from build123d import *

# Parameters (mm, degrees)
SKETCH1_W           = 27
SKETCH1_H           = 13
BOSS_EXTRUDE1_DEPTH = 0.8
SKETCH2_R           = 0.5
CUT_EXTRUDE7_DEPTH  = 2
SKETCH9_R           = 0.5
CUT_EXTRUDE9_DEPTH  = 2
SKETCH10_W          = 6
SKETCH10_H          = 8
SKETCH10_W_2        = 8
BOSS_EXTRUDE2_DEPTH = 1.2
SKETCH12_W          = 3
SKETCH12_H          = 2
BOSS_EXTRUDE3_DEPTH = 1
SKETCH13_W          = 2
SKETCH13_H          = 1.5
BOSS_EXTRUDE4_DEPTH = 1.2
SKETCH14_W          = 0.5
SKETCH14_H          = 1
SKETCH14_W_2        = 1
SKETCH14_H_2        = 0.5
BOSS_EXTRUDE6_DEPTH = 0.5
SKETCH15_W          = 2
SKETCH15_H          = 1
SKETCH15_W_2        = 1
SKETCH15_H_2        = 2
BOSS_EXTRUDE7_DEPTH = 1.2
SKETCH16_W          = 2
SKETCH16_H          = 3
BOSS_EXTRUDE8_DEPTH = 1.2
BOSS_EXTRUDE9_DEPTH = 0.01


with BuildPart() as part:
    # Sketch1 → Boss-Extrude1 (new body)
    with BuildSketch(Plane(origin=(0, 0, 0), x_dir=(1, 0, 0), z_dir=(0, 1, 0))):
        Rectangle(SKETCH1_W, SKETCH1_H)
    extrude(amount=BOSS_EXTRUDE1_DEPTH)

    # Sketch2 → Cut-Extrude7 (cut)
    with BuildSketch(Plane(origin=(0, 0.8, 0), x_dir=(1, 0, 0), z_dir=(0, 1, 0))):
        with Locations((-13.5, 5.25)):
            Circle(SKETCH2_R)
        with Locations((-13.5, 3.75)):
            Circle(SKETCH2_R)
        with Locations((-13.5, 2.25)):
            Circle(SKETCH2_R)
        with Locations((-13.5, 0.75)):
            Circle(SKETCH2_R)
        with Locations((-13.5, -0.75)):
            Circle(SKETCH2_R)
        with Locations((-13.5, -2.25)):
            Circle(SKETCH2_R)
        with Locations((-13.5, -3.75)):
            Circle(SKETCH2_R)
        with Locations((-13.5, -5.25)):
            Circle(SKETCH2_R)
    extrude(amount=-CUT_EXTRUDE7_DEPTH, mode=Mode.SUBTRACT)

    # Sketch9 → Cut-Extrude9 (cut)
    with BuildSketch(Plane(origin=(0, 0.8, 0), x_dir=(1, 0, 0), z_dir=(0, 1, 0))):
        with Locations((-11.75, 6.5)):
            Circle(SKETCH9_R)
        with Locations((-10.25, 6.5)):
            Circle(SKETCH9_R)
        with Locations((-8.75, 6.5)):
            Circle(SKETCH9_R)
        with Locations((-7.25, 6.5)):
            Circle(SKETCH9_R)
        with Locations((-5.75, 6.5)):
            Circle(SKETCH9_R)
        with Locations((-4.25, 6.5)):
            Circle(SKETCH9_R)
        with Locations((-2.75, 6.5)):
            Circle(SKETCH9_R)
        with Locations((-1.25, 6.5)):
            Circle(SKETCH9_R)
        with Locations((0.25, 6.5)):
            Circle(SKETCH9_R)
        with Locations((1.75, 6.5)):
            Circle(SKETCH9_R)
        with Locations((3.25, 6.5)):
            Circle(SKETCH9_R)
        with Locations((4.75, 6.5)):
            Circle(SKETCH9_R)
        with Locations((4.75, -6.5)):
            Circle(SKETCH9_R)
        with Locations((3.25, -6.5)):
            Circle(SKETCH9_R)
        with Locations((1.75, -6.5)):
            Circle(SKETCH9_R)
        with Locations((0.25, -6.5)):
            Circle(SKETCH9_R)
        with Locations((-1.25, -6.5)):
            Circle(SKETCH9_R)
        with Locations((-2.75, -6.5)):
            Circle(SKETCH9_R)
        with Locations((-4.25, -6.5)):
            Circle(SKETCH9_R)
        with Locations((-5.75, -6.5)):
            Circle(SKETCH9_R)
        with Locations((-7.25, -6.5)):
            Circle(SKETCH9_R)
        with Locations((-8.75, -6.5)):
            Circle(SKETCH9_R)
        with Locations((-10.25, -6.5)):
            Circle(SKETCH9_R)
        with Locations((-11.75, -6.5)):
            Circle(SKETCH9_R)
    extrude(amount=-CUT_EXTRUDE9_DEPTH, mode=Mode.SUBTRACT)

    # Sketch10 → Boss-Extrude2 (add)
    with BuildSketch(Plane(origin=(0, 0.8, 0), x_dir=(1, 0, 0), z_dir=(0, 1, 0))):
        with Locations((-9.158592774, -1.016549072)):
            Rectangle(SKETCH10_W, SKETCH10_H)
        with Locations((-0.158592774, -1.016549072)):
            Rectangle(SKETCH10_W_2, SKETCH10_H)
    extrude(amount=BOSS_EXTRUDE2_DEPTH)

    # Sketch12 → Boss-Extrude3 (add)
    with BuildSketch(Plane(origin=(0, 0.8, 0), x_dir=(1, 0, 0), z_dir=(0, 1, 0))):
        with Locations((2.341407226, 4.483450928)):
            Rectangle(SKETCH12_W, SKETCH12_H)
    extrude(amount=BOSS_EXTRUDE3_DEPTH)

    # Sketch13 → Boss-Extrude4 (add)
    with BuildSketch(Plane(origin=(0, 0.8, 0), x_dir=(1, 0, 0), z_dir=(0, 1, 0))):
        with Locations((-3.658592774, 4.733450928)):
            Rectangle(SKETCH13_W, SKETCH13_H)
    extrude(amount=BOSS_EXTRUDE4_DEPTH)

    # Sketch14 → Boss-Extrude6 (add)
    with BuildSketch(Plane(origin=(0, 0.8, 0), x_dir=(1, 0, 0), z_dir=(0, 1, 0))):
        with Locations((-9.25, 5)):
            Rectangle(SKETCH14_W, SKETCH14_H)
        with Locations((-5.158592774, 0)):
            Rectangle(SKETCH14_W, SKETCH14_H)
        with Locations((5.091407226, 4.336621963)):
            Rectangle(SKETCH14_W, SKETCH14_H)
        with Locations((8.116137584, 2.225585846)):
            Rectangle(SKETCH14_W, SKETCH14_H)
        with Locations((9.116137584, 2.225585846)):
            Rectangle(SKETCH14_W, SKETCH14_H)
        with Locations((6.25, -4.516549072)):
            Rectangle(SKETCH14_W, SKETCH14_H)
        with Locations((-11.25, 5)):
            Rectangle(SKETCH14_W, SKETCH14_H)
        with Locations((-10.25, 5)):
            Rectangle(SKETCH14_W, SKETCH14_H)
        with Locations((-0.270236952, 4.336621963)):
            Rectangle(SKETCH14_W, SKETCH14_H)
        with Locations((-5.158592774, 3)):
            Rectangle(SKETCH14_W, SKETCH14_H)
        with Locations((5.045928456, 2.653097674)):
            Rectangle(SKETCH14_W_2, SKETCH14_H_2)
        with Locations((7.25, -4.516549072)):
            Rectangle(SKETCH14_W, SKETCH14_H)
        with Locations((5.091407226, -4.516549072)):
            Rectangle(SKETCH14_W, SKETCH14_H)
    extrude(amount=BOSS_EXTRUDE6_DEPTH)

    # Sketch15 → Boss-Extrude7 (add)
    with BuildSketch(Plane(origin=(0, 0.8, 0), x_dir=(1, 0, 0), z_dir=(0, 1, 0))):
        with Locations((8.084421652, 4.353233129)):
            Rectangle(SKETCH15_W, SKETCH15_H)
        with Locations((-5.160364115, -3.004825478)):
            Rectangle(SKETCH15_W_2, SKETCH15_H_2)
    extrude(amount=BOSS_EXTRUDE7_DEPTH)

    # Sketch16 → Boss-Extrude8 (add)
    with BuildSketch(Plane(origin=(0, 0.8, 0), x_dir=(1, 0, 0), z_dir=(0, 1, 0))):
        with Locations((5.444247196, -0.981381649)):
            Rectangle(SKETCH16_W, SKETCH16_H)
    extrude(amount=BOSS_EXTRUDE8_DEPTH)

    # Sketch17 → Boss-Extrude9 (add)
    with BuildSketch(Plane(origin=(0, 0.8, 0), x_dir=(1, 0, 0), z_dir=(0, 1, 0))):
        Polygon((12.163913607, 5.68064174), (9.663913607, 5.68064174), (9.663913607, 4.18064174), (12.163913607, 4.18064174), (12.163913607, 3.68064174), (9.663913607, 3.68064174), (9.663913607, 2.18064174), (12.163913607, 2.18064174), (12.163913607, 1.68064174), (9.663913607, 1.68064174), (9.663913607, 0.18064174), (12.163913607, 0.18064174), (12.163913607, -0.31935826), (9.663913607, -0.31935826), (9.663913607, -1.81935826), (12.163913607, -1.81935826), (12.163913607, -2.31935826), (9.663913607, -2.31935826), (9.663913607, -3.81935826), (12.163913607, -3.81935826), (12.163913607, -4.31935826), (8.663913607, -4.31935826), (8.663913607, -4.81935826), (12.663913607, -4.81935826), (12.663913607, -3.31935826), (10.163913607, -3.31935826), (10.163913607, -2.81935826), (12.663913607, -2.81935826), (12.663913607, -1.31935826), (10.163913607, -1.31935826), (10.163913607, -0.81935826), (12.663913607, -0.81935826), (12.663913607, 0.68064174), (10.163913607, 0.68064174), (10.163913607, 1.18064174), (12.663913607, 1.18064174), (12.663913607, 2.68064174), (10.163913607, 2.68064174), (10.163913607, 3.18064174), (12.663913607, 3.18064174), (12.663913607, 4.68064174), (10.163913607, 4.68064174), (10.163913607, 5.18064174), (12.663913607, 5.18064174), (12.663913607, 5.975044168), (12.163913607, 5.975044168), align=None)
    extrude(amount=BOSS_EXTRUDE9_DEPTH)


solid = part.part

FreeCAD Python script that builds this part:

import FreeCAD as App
import Part
import Sketcher
Q = App.Units.Quantity


def add_polygon(sketch, points):
    """Adds a closed chain of lines whose ends are joined by coincident constraints."""
    first, n = sketch.GeometryCount, len(points)
    for a, b in zip(points, points[1:] + points[:1]):
        sketch.addGeometry(Part.LineSegment(App.Vector(*a, 0), App.Vector(*b, 0)), False)
    for i in range(n):
        sketch.addConstraint(Sketcher.Constraint("Coincident", first + i, 2, first + (i + 1) % n, 1))

doc = App.newDocument("Part")
body = doc.addObject("PartDesign::Body", "Body")

# Sketch on XZ plane
sketch1 = body.newObject("Sketcher::SketchObject", "Sketch")
sketch1.AttachmentSupport = (doc.getObject("XZ_Plane"), [""])
sketch1.MapMode = "FlatFace"
add_polygon(sketch1, [(-14, -6), (-14, 6), (14, 6), (14, -6)])  # lines 0-3
sketch1.addConstraint([
    Sketcher.Constraint("Vertical", 0),
    Sketcher.Constraint("Horizontal", 1),
    Sketcher.Constraint("Vertical", 2),
    Sketcher.Constraint("Horizontal", 3),
    Sketcher.Constraint("Symmetric", 0, 2, 2, 2, -1, 1),
    Sketcher.Constraint("DistanceX", 1, 1, 1, 2, Q("27 mm")),
    Sketcher.Constraint("DistanceY", 0, 1, 0, 2, Q("13 mm")),
])
pad1 = body.newObject("PartDesign::Pad", "Pad")
pad1.Profile = sketch1
pad1.Length = 0.8
pad1.Reversed = True

# Sketch on XZ plane
sketch2 = body.newObject("Sketcher::SketchObject", "Sketch001")
sketch2.AttachmentSupport = (doc.getObject("XZ_Plane"), [""])
sketch2.MapMode = "FlatFace"
sketch2.AttachmentOffset = App.Placement(App.Vector(0, 0, -0.8), App.Rotation())
sketch2.addGeometry([
    Part.Circle(App.Vector(-13.5, -5.2, 0), App.Vector(0, 0, 1), 0.5),  # 0
    Part.Circle(App.Vector(-13.5, -3.8, 0), App.Vector(0, 0, 1), 0.5),  # 1
    Part.Circle(App.Vector(-13.5, -2.2, 0), App.Vector(0, 0, 1), 0.5),  # 2
    Part.Circle(App.Vector(-13.5, -0.8, 0), App.Vector(0, 0, 1), 0.5),  # 3
    Part.Circle(App.Vector(-13.5, 0.8, 0), App.Vector(0, 0, 1), 0.5),  # 4
    Part.Circle(App.Vector(-13.5, 2.2, 0), App.Vector(0, 0, 1), 0.5),  # 5
    Part.Circle(App.Vector(-13.5, 3.8, 0), App.Vector(0, 0, 1), 0.5),  # 6
    Part.Circle(App.Vector(-13.5, 5.2, 0), App.Vector(0, 0, 1), 0.5),  # 7
], False)
sketch2.addConstraint([
    Sketcher.Constraint("Equal", 0, 1),
    Sketcher.Constraint("Equal", 1, 2),
    Sketcher.Constraint("Equal", 2, 3),
    Sketcher.Constraint("Equal", 3, 4),
    Sketcher.Constraint("Equal", 4, 5),
    Sketcher.Constraint("Equal", 5, 6),
    Sketcher.Constraint("Equal", 6, 7),
    Sketcher.Constraint("Symmetric", 3, 3, 4, 3, -1),
    Sketcher.Constraint("Symmetric", 2, 3, 5, 3, -1),
    Sketcher.Constraint("Symmetric", 1, 3, 6, 3, -1),
    Sketcher.Constraint("Symmetric", 0, 3, 7, 3, -1),
    Sketcher.Constraint("Vertical", 0, 3, 1, 3),
    Sketcher.Constraint("Vertical", 1, 3, 2, 3),
    Sketcher.Constraint("Vertical", 2, 3, 3, 3),
    Sketcher.Constraint("Diameter", 0, Q("1 mm")),
    Sketcher.Constraint("DistanceY", 0, 3, 2, 3, Q("3 mm")),
    Sketcher.Constraint("DistanceY", 1, 3, 3, 3, Q("3 mm")),
    Sketcher.Constraint("DistanceY", 2, 3, 4, 3, Q("3 mm")),
    Sketcher.Constraint("DistanceX", 0, 3, -1, 1, Q("13.5 mm")),
    Sketcher.Constraint("DistanceY", 0, 3, 1, 3, Q("1.5 mm")),
])
pocket1 = body.newObject("PartDesign::Pocket", "Pocket")
pocket1.Profile = sketch2
pocket1.Length = 2
pocket1.Reversed = True

# Sketch on XZ plane
sketch3 = body.newObject("Sketcher::SketchObject", "Sketch002")
sketch3.AttachmentSupport = (doc.getObject("XZ_Plane"), [""])
sketch3.MapMode = "FlatFace"
sketch3.AttachmentOffset = App.Placement(App.Vector(0, 0, -0.8), App.Rotation())
sketch3.addGeometry([
    Part.Circle(App.Vector(-11.8, -6.5, 0), App.Vector(0, 0, 1), 0.5),  # 0
    Part.Circle(App.Vector(-10.2, -6.5, 0), App.Vector(0, 0, 1), 0.5),  # 1
    Part.Circle(App.Vector(-8.8, -6.5, 0), App.Vector(0, 0, 1), 0.5),  # 2
    Part.Circle(App.Vector(-7.2, -6.5, 0), App.Vector(0, 0, 1), 0.5),  # 3
    Part.Circle(App.Vector(-5.8, -6.5, 0), App.Vector(0, 0, 1), 0.5),  # 4
    Part.Circle(App.Vector(-4.2, -6.5, 0), App.Vector(0, 0, 1), 0.5),  # 5
    Part.Circle(App.Vector(-2.8, -6.5, 0), App.Vector(0, 0, 1), 0.5),  # 6
    Part.Circle(App.Vector(-1.2, -6.5, 0), App.Vector(0, 0, 1), 0.5),  # 7
    Part.Circle(App.Vector(0.2, -6.5, 0), App.Vector(0, 0, 1), 0.5),  # 8
    Part.Circle(App.Vector(1.8, -6.5, 0), App.Vector(0, 0, 1), 0.5),  # 9
    Part.Circle(App.Vector(3.2, -6.5, 0), App.Vector(0, 0, 1), 0.5),  # 10
    Part.Circle(App.Vector(4.8, -6.5, 0), App.Vector(0, 0, 1), 0.5),  # 11
    Part.Circle(App.Vector(4.8, 6.5, 0), App.Vector(0, 0, 1), 0.5),  # 12
    Part.Circle(App.Vector(3.2, 6.5, 0), App.Vector(0, 0, 1), 0.5),  # 13
    Part.Circle(App.Vector(1.8, 6.5, 0), App.Vector(0, 0, 1), 0.5),  # 14
    Part.Circle(App.Vector(0.2, 6.5, 0), App.Vector(0, 0, 1), 0.5),  # 15
    Part.Circle(App.Vector(-1.2, 6.5, 0), App.Vector(0, 0, 1), 0.5),  # 16
    Part.Circle(App.Vector(-2.8, 6.5, 0), App.Vector(0, 0, 1), 0.5),  # 17
    Part.Circle(App.Vector(-4.2, 6.5, 0), App.Vector(0, 0, 1), 0.5),  # 18
    Part.Circle(App.Vector(-5.8, 6.5, 0), App.Vector(0, 0, 1), 0.5),  # 19
    Part.Circle(App.Vector(-7.2, 6.5, 0), App.Vector(0, 0, 1), 0.5),  # 20
    Part.Circle(App.Vector(-8.8, 6.5, 0), App.Vector(0, 0, 1), 0.5),  # 21
    Part.Circle(App.Vector(-10.2, 6.5, 0), App.Vector(0, 0, 1), 0.5),  # 22
    Part.Circle(App.Vector(-11.8, 6.5, 0), App.Vector(0, 0, 1), 0.5),  # 23
], False)
sketch3.addConstraint([
    Sketcher.Constraint("Equal", 0, 1),
    Sketcher.Constraint("Equal", 1, 2),
    Sketcher.Constraint("Equal", 2, 3),
    Sketcher.Constraint("Equal", 3, 4),
    Sketcher.Constraint("Equal", 4, 5),
    Sketcher.Constraint("Equal", 5, 6),
    Sketcher.Constraint("Equal", 6, 7),
    Sketcher.Constraint("Equal", 7, 8),
    Sketcher.Constraint("Equal", 8, 9),
    Sketcher.Constraint("Equal", 9, 10),
    Sketcher.Constraint("Equal", 10, 11),
    Sketcher.Constraint("Equal", 11, 12),
    Sketcher.Constraint("Equal", 12, 13),
    Sketcher.Constraint("Equal", 13, 14),
    Sketcher.Constraint("Equal", 14, 15),
    Sketcher.Constraint("Equal", 15, 16),
    Sketcher.Constraint("Equal", 16, 17),
    Sketcher.Constraint("Equal", 17, 18),
    Sketcher.Constraint("Equal", 18, 19),
    Sketcher.Constraint("Equal", 19, 20),
    Sketcher.Constraint("Equal", 20, 21),
    Sketcher.Constraint("Equal", 21, 22),
    Sketcher.Constraint("Equal", 22, 23),
    Sketcher.Constraint("Symmetric", 11, 3, 12, 3, -1),
    Sketcher.Constraint("Symmetric", 10, 3, 13, 3, -1),
    Sketcher.Constraint("Symmetric", 9, 3, 14, 3, -1),
    Sketcher.Constraint("Symmetric", 8, 3, 15, 3, -1),
    Sketcher.Constraint("Symmetric", 7, 3, 16, 3, -1),
    Sketcher.Constraint("Symmetric", 6, 3, 17, 3, -1),
    Sketcher.Constraint("Symmetric", 5, 3, 18, 3, -1),
    Sketcher.Constraint("Symmetric", 4, 3, 19, 3, -1),
    Sketcher.Constraint("Symmetric", 3, 3, 20, 3, -1),
    Sketcher.Constraint("Symmetric", 2, 3, 21, 3, -1),
    Sketcher.Constraint("Symmetric", 1, 3, 22, 3, -1),
    Sketcher.Constraint("Symmetric", 0, 3, 23, 3, -1),
    Sketcher.Constraint("Horizontal", 0, 3, 1, 3),
    Sketcher.Constraint("Horizontal", 1, 3, 2, 3),
    Sketcher.Constraint("Horizontal", 2, 3, 3, 3),
    Sketcher.Constraint("Horizontal", 3, 3, 4, 3),
    Sketcher.Constraint("Horizontal", 4, 3, 5, 3),
    Sketcher.Constraint("Horizontal", 5, 3, 6, 3),
    Sketcher.Constraint("Horizontal", 6, 3, 7, 3),
    Sketcher.Constraint("Horizontal", 7, 3, 8, 3),
    Sketcher.Constraint("Horizontal", 8, 3, 9, 3),
    Sketcher.Constraint("Horizontal", 9, 3, 10, 3),
    Sketcher.Constraint("Horizontal", 10, 3, 11, 3),
    Sketcher.Constraint("Diameter", 0, Q("1 mm")),
    Sketcher.Constraint("DistanceX", 0, 3, 2, 3, Q("3 mm")),
    Sketcher.Constraint("DistanceX", 1, 3, 3, 3, Q("3 mm")),
    Sketcher.Constraint("DistanceX", 2, 3, 4, 3, Q("3 mm")),
    Sketcher.Constraint("DistanceX", 3, 3, 5, 3, Q("3 mm")),
    Sketcher.Constraint("DistanceX", 4, 3, 6, 3, Q("3 mm")),
    Sketcher.Constraint("DistanceX", 5, 3, 7, 3, Q("3 mm")),
    Sketcher.Constraint("DistanceX", 6, 3, 8, 3, Q("3 mm")),
    Sketcher.Constraint("DistanceX", 7, 3, 9, 3, Q("3 mm")),
    Sketcher.Constraint("DistanceX", 8, 3, 10, 3, Q("3 mm")),
    Sketcher.Constraint("DistanceX", 9, 3, 11, 3, Q("3 mm")),
    Sketcher.Constraint("DistanceY", 11, 3, 12, 3, Q("13 mm")),
    Sketcher.Constraint("DistanceX", 0, 3, 1, 3, Q("1.5 mm")),
    Sketcher.Constraint("DistanceX", 0, 3, -1, 1, Q("11.75 mm")),
])
pocket2 = body.newObject("PartDesign::Pocket", "Pocket001")
pocket2.Profile = sketch3
pocket2.Length = 2
pocket2.Reversed = True

# Sketch on XZ plane
sketch4 = body.newObject("Sketcher::SketchObject", "Sketch003")
sketch4.AttachmentSupport = (doc.getObject("XZ_Plane"), [""])
sketch4.MapMode = "FlatFace"
sketch4.AttachmentOffset = App.Placement(App.Vector(0, 0, -0.8), App.Rotation())
add_polygon(sketch4, [(-12, -3), (-12, 5), (-6, 5), (-6, -3)])  # lines 0-3
add_polygon(sketch4, [(-4, -3), (-4, 5), (4, 5), (4, -3)])  # lines 4-7
sketch4.addConstraint([
    Sketcher.Constraint("Vertical", 0),
    Sketcher.Constraint("Horizontal", 1),
    Sketcher.Constraint("Vertical", 2),
    Sketcher.Constraint("Horizontal", 3),
    Sketcher.Constraint("Vertical", 4),
    Sketcher.Constraint("Horizontal", 5),
    Sketcher.Constraint("Vertical", 6),
    Sketcher.Constraint("Horizontal", 7),
    Sketcher.Constraint("Horizontal", 1, 2, 4, 2),
    Sketcher.Constraint("Horizontal", 3, 2, 6, 2),
    Sketcher.Constraint("Equal", 7, 0),
    Sketcher.Constraint("DistanceX", 1, 1, 1, 2, Q("6 mm")),
    Sketcher.Constraint("DistanceX", 5, 1, 5, 2, Q("8 mm")),
    Sketcher.Constraint("DistanceX", 1, 2, 4, 2, Q("2 mm")),
    Sketcher.Constraint("DistanceY", -1, 1, 0, 2, Q("5.016549 mm")),
    Sketcher.Constraint("DistanceX", 0, 2, -1, 1, Q("12.158593 mm")),
])
pad2 = body.newObject("PartDesign::Pad", "Pad001")
pad2.Profile = sketch4
pad2.Length = 1.2
pad2.Reversed = True

# Sketch on XZ plane
sketch5 = body.newObject("Sketcher::SketchObject", "Sketch004")
sketch5.AttachmentSupport = (doc.getObject("XZ_Plane"), [""])
sketch5.MapMode = "FlatFace"
sketch5.AttachmentOffset = App.Placement(App.Vector(0, 0, -0.8), App.Rotation())
add_polygon(sketch5, [(0.8, -5.5), (0.8, -3.5), (3.8, -3.5), (3.8, -5.5)])  # lines 0-3
sketch5.addConstraint([
    Sketcher.Constraint("Vertical", 0),
    Sketcher.Constraint("Horizontal", 1),
    Sketcher.Constraint("Vertical", 2),
    Sketcher.Constraint("Horizontal", 3),
    Sketcher.Constraint("DistanceX", 1, 1, 1, 2, Q("3 mm")),
    Sketcher.Constraint("DistanceY", 0, 1, 0, 2, Q("2 mm")),
    Sketcher.Constraint("DistanceY", 0, 2, -1, 1, Q("3.483451 mm")),
    Sketcher.Constraint("DistanceX", -1, 1, 0, 2, Q("0.841407 mm")),
])
pad3 = body.newObject("PartDesign::Pad", "Pad002")
pad3.Profile = sketch5
pad3.Length = 1
pad3.Reversed = True

# Sketch on XZ plane
sketch6 = body.newObject("Sketcher::SketchObject", "Sketch005")
sketch6.AttachmentSupport = (doc.getObject("XZ_Plane"), [""])
sketch6.MapMode = "FlatFace"
sketch6.AttachmentOffset = App.Placement(App.Vector(0, 0, -0.8), App.Rotation())
add_polygon(sketch6, [(-4.7, -5.5), (-4.7, -4), (-2.7, -4), (-2.7, -5.5)])  # lines 0-3
sketch6.addConstraint([
    Sketcher.Constraint("Vertical", 0),
    Sketcher.Constraint("Horizontal", 1),
    Sketcher.Constraint("Vertical", 2),
    Sketcher.Constraint("Horizontal", 3),
    Sketcher.Constraint("DistanceX", 1, 1, 1, 2, Q("2 mm")),
    Sketcher.Constraint("DistanceY", 0, 1, 0, 2, Q("1.5 mm")),
    Sketcher.Constraint("DistanceY", 0, 2, -1, 1, Q("3.983451 mm")),
    Sketcher.Constraint("DistanceX", 0, 2, -1, 1, Q("4.658593 mm")),
])
pad4 = body.newObject("PartDesign::Pad", "Pad003")
pad4.Profile = sketch6
pad4.Length = 1.2
pad4.Reversed = True

# Sketch on XZ plane
sketch7 = body.newObject("Sketcher::SketchObject", "Sketch006")
sketch7.AttachmentSupport = (doc.getObject("XZ_Plane"), [""])
sketch7.MapMode = "FlatFace"
sketch7.AttachmentOffset = App.Placement(App.Vector(0, 0, -0.8), App.Rotation())
add_polygon(sketch7, [(-9.5, -5.5), (-9.5, -4.5), (-9, -4.5), (-9, -5.5)])  # lines 0-3
add_polygon(sketch7, [(-5.4, -0.5), (-5.4, 0.5), (-4.9, 0.5), (-4.9, -0.5)])  # lines 4-7
add_polygon(sketch7, [(4.8, -4.8), (4.8, -3.8), (5.3, -3.8), (5.3, -4.8)])  # lines 8-11
add_polygon(sketch7, [(7.9, -2.7), (7.9, -1.7), (8.4, -1.7), (8.4, -2.7)])  # lines 12-15
add_polygon(sketch7, [(8.9, -2.7), (8.9, -1.7), (9.4, -1.7), (9.4, -2.7)])  # lines 16-19
add_polygon(sketch7, [(6, 4), (6, 5), (6.5, 5), (6.5, 4)])  # lines 20-23
add_polygon(sketch7, [(-11.5, -5.5), (-11.5, -4.5), (-11, -4.5), (-11, -5.5)])  # lines 24-27
add_polygon(sketch7, [(-10.5, -5.5), (-10.5, -4.5), (-10, -4.5), (-10, -5.5)])  # lines 28-31
add_polygon(sketch7, [(-0.5, -4.8), (-0.5, -3.8), (0, -3.8), (0, -4.8)])  # lines 32-35
add_polygon(sketch7, [(-5.4, -3.5), (-5.4, -2.5), (-4.9, -2.5), (-4.9, -3.5)])  # lines 36-39
add_polygon(sketch7, [(4.5, -2.9), (4.5, -2.4), (5.5, -2.4), (5.5, -2.9)])  # lines 40-43
add_polygon(sketch7, [(7, 4), (7, 5), (7.5, 5), (7.5, 4)])  # lines 44-47
add_polygon(sketch7, [(4.8, 4), (4.8, 5), (5.3, 5), (5.3, 4)])  # lines 48-51
sketch7.addConstraint([
    Sketcher.Constraint("Vertical", 0),
    Sketcher.Constraint("Horizontal", 1),
    Sketcher.Constraint("Vertical", 2),
    Sketcher.Constraint("Horizontal", 3),
    Sketcher.Constraint("Vertical", 4),
    Sketcher.Constraint("Horizontal", 5),
    Sketcher.Constraint("Vertical", 6),
    Sketcher.Constraint("Horizontal", 7),
    Sketcher.Constraint("Vertical", 8),
    Sketcher.Constraint("Horizontal", 9),
    Sketcher.Constraint("Vertical", 10),
    Sketcher.Constraint("Horizontal", 11),
    Sketcher.Constraint("Vertical", 12),
    Sketcher.Constraint("Horizontal", 13),
    Sketcher.Constraint("Vertical", 14),
    Sketcher.Constraint("Horizontal", 15),
    Sketcher.Constraint("Vertical", 16),
    Sketcher.Constraint("Horizontal", 17),
    Sketcher.Constraint("Vertical", 18),
    Sketcher.Constraint("Horizontal", 19),
    Sketcher.Constraint("Vertical", 20),
    Sketcher.Constraint("Horizontal", 21),
    Sketcher.Constraint("Vertical", 22),
    Sketcher.Constraint("Horizontal", 23),
    Sketcher.Constraint("Vertical", 24),
    Sketcher.Constraint("Horizontal", 25),
    Sketcher.Constraint("Vertical", 26),
    Sketcher.Constraint("Horizontal", 27),
    Sketcher.Constraint("Vertical", 28),
    Sketcher.Constraint("Horizontal", 29),
    Sketcher.Constraint("Vertical", 30),
    Sketcher.Constraint("Horizontal", 31),
    Sketcher.Constraint("Vertical", 32),
    Sketcher.Constraint("Horizontal", 33),
    Sketcher.Constraint("Vertical", 34),
    Sketcher.Constraint("Horizontal", 35),
    Sketcher.Constraint("Vertical", 36),
    Sketcher.Constraint("Horizontal", 37),
    Sketcher.Constraint("Vertical", 38),
    Sketcher.Constraint("Horizontal", 39),
    Sketcher.Constraint("Vertical", 40),
    Sketcher.Constraint("Horizontal", 41),
    Sketcher.Constraint("Vertical", 42),
    Sketcher.Constraint("Horizontal", 43),
    Sketcher.Constraint("Vertical", 44),
    Sketcher.Constraint("Horizontal", 45),
    Sketcher.Constraint("Vertical", 46),
    Sketcher.Constraint("Horizontal", 47),
    Sketcher.Constraint("Vertical", 48),
    Sketcher.Constraint("Horizontal", 49),
    Sketcher.Constraint("Vertical", 50),
    Sketcher.Constraint("Horizontal", 51),
    Sketcher.Constraint("Horizontal", 13, 2, 16, 2),
    Sketcher.Constraint("Horizontal", 15, 2, 18, 2),
    Sketcher.Constraint("Horizontal", 1, 2, 24, 2),
    Sketcher.Constraint("Horizontal", 3, 2, 26, 2),
    Sketcher.Constraint("Horizontal", 25, 2, 28, 2),
    Sketcher.Constraint("Horizontal", 27, 2, 30, 2),
    Sketcher.Constraint("Horizontal", 9, 2, 32, 2),
    Sketcher.Constraint("Horizontal", 11, 2, 34, 2),
    Sketcher.Constraint("Horizontal", 21, 2, 44, 2),
    Sketcher.Constraint("Horizontal", 23, 2, 46, 2),
    Sketcher.Constraint("Horizontal", 45, 2, 48, 2),
    Sketcher.Constraint("Horizontal", 47, 2, 50, 2),
    Sketcher.Constraint("Vertical", 7, 2, 36, 2),
    Sketcher.Constraint("Vertical", 6, 2, 37, 2),
    Sketcher.Constraint("Vertical", 11, 2, 48, 2),
    Sketcher.Constraint("Vertical", 10, 2, 49, 2),
    Sketcher.Constraint("Equal", 3, 5),
    Sketcher.Constraint("Equal", 7, 9),
    Sketcher.Constraint("Equal", 11, 13),
    Sketcher.Constraint("Equal", 15, 17),
    Sketcher.Constraint("Equal", 19, 21),
    Sketcher.Constraint("Equal", 23, 25),
    Sketcher.Constraint("Equal", 27, 29),
    Sketcher.Constraint("Equal", 31, 33),
    Sketcher.Constraint("Equal", 39, 45),
    Sketcher.Constraint("Equal", 43, 0),
    Sketcher.Constraint("Equal", 2, 4),
    Sketcher.Constraint("Equal", 6, 8),
    Sketcher.Constraint("Equal", 10, 12),
    Sketcher.Constraint("Equal", 18, 20),
    Sketcher.Constraint("Equal", 34, 36),
    Sketcher.Constraint("Equal", 51, 40),
    Sketcher.Constraint("DistanceX", 41, 1, 41, 2, Q("1 mm")),
    Sketcher.Constraint("DistanceX", 1, 1, 1, 2, Q("0.5 mm")),
    Sketcher.Constraint("DistanceX", 1, 2, -1, 1, Q("9 mm")),
    Sketcher.Constraint("DistanceX", -1, 1, 20, 2, Q("6 mm")),
    Sketcher.Constraint("DistanceX", 25, 2, -1, 1, Q("11 mm")),
    Sketcher.Constraint("DistanceX", 29, 2, -1, 1, Q("10 mm")),
    Sketcher.Constraint("DistanceX", -1, 1, 44, 2, Q("7 mm")),
    Sketcher.Constraint("DistanceY", 1, 2, 4, 2, Q("5 mm")),
    Sketcher.Constraint("DistanceX", 12, 2, 16, 2, Q("1 mm")),
    Sketcher.Constraint("DistanceY", 36, 2, 7, 2, Q("2 mm")),
    Sketcher.Constraint("DistanceY", 0, 2, -1, 1, Q("4.5 mm")),
    Sketcher.Constraint("DistanceX", 6, 2, 8, 2, Q("9.75 mm")),
    Sketcher.Constraint("DistanceY", 8, 2, -1, 1, Q("3.836622 mm")),
    Sketcher.Constraint("DistanceY", -1, 1, 20, 2, Q("5.016549 mm")),
    Sketcher.Constraint("DistanceX", -1, 1, 40, 2, Q("4.545928 mm")),
    Sketcher.Constraint("DistanceX", 9, 2, 12, 2, Q("2.52473 mm")),
    Sketcher.Constraint("DistanceX", 40, 2, 8, 2, Q("0.295479 mm")),
    Sketcher.Constraint("DistanceY", 15, 2, 40, 2, Q("0.322488 mm")),
    Sketcher.Constraint("DistanceY", 12, 2, -1, 1, Q("1.725586 mm")),
    Sketcher.Constraint("DistanceX", 32, 2, -1, 1, Q("0.520237 mm")),
])
pad5 = body.newObject("PartDesign::Pad", "Pad004")
pad5.Profile = sketch7
pad5.Length = 0.5
pad5.Reversed = True

# Sketch on XZ plane
sketch8 = body.newObject("Sketcher::SketchObject", "Sketch007")
sketch8.AttachmentSupport = (doc.getObject("XZ_Plane"), [""])
sketch8.MapMode = "FlatFace"
sketch8.AttachmentOffset = App.Placement(App.Vector(0, 0, -0.8), App.Rotation())
add_polygon(sketch8, [(7.1, -4.9), (7.1, -3.9), (9.1, -3.9), (9.1, -4.9)])  # lines 0-3
add_polygon(sketch8, [(-5.7, 2), (-5.7, 4), (-4.7, 4), (-4.7, 2)])  # lines 4-7
sketch8.addConstraint([
    Sketcher.Constraint("Vertical", 0),
    Sketcher.Constraint("Horizontal", 1),
    Sketcher.Constraint("Vertical", 2),
    Sketcher.Constraint("Horizontal", 3),
    Sketcher.Constraint("Vertical", 4),
    Sketcher.Constraint("Horizontal", 5),
    Sketcher.Constraint("Vertical", 6),
    Sketcher.Constraint("Horizontal", 7),
    Sketcher.Constraint("Equal", 7, 0),
    Sketcher.Constraint("Equal", 3, 4),
    Sketcher.Constraint("DistanceX", 1, 1, 1, 2, Q("2 mm")),
    Sketcher.Constraint("DistanceX", 5, 1, 5, 2, Q("1 mm")),
    Sketcher.Constraint("DistanceX", -1, 1, 0, 2, Q("7.084422 mm")),
    Sketcher.Constraint("DistanceY", 0, 2, 4, 2, Q("7.858059 mm")),
    Sketcher.Constraint("DistanceY", 0, 2, -1, 1, Q("3.853233 mm")),
    Sketcher.Constraint("DistanceX", 4, 2, -1, 1, Q("5.660364 mm")),
])
pad6 = body.newObject("PartDesign::Pad", "Pad005")
pad6.Profile = sketch8
pad6.Length = 1.2
pad6.Reversed = True

# Sketch on XZ plane
sketch9 = body.newObject("Sketcher::SketchObject", "Sketch008")
sketch9.AttachmentSupport = (doc.getObject("XZ_Plane"), [""])
sketch9.MapMode = "FlatFace"
sketch9.AttachmentOffset = App.Placement(App.Vector(0, 0, -0.8), App.Rotation())
add_polygon(sketch9, [(4.4, -0.5), (4.4, 2.5), (6.4, 2.5), (6.4, -0.5)])  # lines 0-3
sketch9.addConstraint([
    Sketcher.Constraint("Vertical", 0),
    Sketcher.Constraint("Horizontal", 1),
    Sketcher.Constraint("Vertical", 2),
    Sketcher.Constraint("Horizontal", 3),
    Sketcher.Constraint("DistanceX", 1, 1, 1, 2, Q("2 mm")),
    Sketcher.Constraint("DistanceY", 0, 1, 0, 2, Q("3 mm")),
    Sketcher.Constraint("DistanceY", -1, 1, 0, 2, Q("2.481382 mm")),
    Sketcher.Constraint("DistanceX", -1, 1, 0, 2, Q("4.444247 mm")),
])
pad7 = body.newObject("PartDesign::Pad", "Pad006")
pad7.Profile = sketch9
pad7.Length = 1.2
pad7.Reversed = True

# Sketch on XZ plane
sketch10 = body.newObject("Sketcher::SketchObject", "Sketch009")
sketch10.AttachmentSupport = (doc.getObject("XZ_Plane"), [""])
sketch10.MapMode = "FlatFace"
sketch10.AttachmentOffset = App.Placement(App.Vector(0, 0, -0.8), App.Rotation())
add_polygon(sketch10, [(12.16, -5.68), (9.66, -5.68), (9.66, -4.18), (12.16, -4.18), (12.16, -3.68), (9.66, -3.68), (9.66, -2.18), (12.16, -2.18), (12.16, -1.68), (9.66, -1.68), (9.66, -0.18), (12.16, -0.18), (12.16, 0.32), (9.66, 0.32), (9.66, 1.82), (12.16, 1.82), (12.16, 2.32), (9.66, 2.32), (9.66, 3.82), (12.16, 3.82), (12.16, 4.32), (8.66, 4.32), (8.66, 4.82), (12.66, 4.82), (12.66, 3.32), (10.16, 3.32), (10.16, 2.82), (12.66, 2.82), (12.66, 1.32), (10.16, 1.32), (10.16, 0.82), (12.66, 0.82), (12.66, -0.68), (10.16, -0.68), (10.16, -1.18), (12.66, -1.18), (12.66, -2.68), (10.16, -2.68), (10.16, -3.18), (12.66, -3.18), (12.66, -4.68), (10.16, -4.68), (10.16, -5.18), (12.66, -5.18), (12.66, -5.98), (12.16, -5.98)])  # lines 0-45
sketch10.addConstraint([
    Sketcher.Constraint("Horizontal", 0),
    Sketcher.Constraint("Vertical", 1),
    Sketcher.Constraint("Horizontal", 2),
    Sketcher.Constraint("Vertical", 3),
    Sketcher.Constraint("Horizontal", 4),
    Sketcher.Constraint("Vertical", 5),
    Sketcher.Constraint("Horizontal", 6),
    Sketcher.Constraint("Vertical", 7),
    Sketcher.Constraint("Horizontal", 8),
    Sketcher.Constraint("Vertical", 9),
    Sketcher.Constraint("Horizontal", 10),
    Sketcher.Constraint("Vertical", 11),
    Sketcher.Constraint("Horizontal", 12),
    Sketcher.Constraint("Vertical", 13),
    Sketcher.Constraint("Horizontal", 14),
    Sketcher.Constraint("Vertical", 15),
    Sketcher.Constraint("Horizontal", 16),
    Sketcher.Constraint("Vertical", 17),
    Sketcher.Constraint("Horizontal", 18),
    Sketcher.Constraint("Vertical", 19),
    Sketcher.Constraint("Horizontal", 20),
    Sketcher.Constraint("Vertical", 21),
    Sketcher.Constraint("Horizontal", 22),
    Sketcher.Constraint("Vertical", 23),
    Sketcher.Constraint("Horizontal", 24),
    Sketcher.Constraint("Vertical", 25),
    Sketcher.Constraint("Horizontal", 26),
    Sketcher.Constraint("Vertical", 27),
    Sketcher.Constraint("Horizontal", 28),
    Sketcher.Constraint("Vertical", 29),
    Sketcher.Constraint("Horizontal", 30),
    Sketcher.Constraint("Vertical", 31),
    Sketcher.Constraint("Horizontal", 32),
    Sketcher.Constraint("Vertical", 33),
    Sketcher.Constraint("Horizontal", 34),
    Sketcher.Constraint("Vertical", 35),
    Sketcher.Constraint("Horizontal", 36),
    Sketcher.Constraint("Vertical", 37),
    Sketcher.Constraint("Horizontal", 38),
    Sketcher.Constraint("Vertical", 39),
    Sketcher.Constraint("Horizontal", 40),
    Sketcher.Constraint("Vertical", 41),
    Sketcher.Constraint("Horizontal", 42),
    Sketcher.Constraint("Vertical", 43),
    Sketcher.Constraint("Horizontal", 44),
    Sketcher.Constraint("Vertical", 45),
    Sketcher.Constraint("Vertical", 1, 2, 4, 2),
    Sketcher.Constraint("Vertical", 3, 2, 6, 2),
    Sketcher.Constraint("Vertical", 5, 2, 8, 2),
    Sketcher.Constraint("Vertical", 7, 2, 10, 2),
    Sketcher.Constraint("Vertical", 9, 2, 12, 2),
    Sketcher.Constraint("Vertical", 11, 2, 14, 2),
    Sketcher.Constraint("Vertical", 13, 2, 16, 2),
    Sketcher.Constraint("Vertical", 15, 2, 18, 2),
    Sketcher.Constraint("Vertical", 23, 2, 26, 2),
    Sketcher.Constraint("Vertical", 25, 2, 28, 2),
    Sketcher.Constraint("Vertical", 27, 2, 30, 2),
    Sketcher.Constraint("Vertical", 29, 2, 32, 2),
    Sketcher.Constraint("Vertical", 31, 2, 34, 2),
    Sketcher.Constraint("Vertical", 33, 2, 36, 2),
    Sketcher.Constraint("Vertical", 35, 2, 38, 2),
    Sketcher.Constraint("Vertical", 37, 2, 40, 2),
    Sketcher.Constraint("Vertical", 39, 2, 42, 2),
    Sketcher.Constraint("Vertical", 19, 2, 44, 2),
    Sketcher.Constraint("Equal", 18, 24),
    Sketcher.Constraint("Equal", 44, 3),
    Sketcher.Constraint("Equal", 1, 5),
    Sketcher.Constraint("Equal", 3, 7),
    Sketcher.Constraint("Equal", 5, 9),
    Sketcher.Constraint("Equal", 7, 11),
    Sketcher.Constraint("Equal", 9, 13),
    Sketcher.Constraint("Equal", 11, 15),
    Sketcher.Constraint("Equal", 13, 17),
    Sketcher.Constraint("Equal", 15, 19),
    Sketcher.Constraint("Equal", 19, 21),
    Sketcher.Constraint("Equal", 17, 23),
    Sketcher.Constraint("Equal", 21, 25),
    Sketcher.Constraint("Equal", 23, 27),
    Sketcher.Constraint("Equal", 25, 29),
    Sketcher.Constraint("Equal", 27, 31),
    Sketcher.Constraint("Equal", 29, 33),
    Sketcher.Constraint("Equal", 31, 35),
    Sketcher.Constraint("Equal", 33, 37),
    Sketcher.Constraint("Equal", 35, 39),
    Sketcher.Constraint("Equal", 37, 41),
    Sketcher.Constraint("DistanceX", 22, 1, 22, 2, Q("4 mm")),
    Sketcher.Constraint("DistanceX", 0, 2, 0, 1, Q("2.5 mm")),
    Sketcher.Constraint("DistanceX", 20, 2, 20, 1, Q("3.5 mm")),
    Sketcher.Constraint("DistanceY", 1, 1, 1, 2, Q("1.5 mm")),
    Sketcher.Constraint("DistanceY", 43, 2, 43, 1, Q("0.794402 mm")),
    Sketcher.Constraint("DistanceY", 0, 2, -1, 1, Q("5.680642 mm")),
    Sketcher.Constraint("DistanceX", -1, 1, 0, 2, Q("9.663914 mm")),
])
pad8 = body.newObject("PartDesign::Pad", "Pad007")
pad8.Profile = sketch10
pad8.Length = 0.01
pad8.Reversed = True

doc.recompute()
